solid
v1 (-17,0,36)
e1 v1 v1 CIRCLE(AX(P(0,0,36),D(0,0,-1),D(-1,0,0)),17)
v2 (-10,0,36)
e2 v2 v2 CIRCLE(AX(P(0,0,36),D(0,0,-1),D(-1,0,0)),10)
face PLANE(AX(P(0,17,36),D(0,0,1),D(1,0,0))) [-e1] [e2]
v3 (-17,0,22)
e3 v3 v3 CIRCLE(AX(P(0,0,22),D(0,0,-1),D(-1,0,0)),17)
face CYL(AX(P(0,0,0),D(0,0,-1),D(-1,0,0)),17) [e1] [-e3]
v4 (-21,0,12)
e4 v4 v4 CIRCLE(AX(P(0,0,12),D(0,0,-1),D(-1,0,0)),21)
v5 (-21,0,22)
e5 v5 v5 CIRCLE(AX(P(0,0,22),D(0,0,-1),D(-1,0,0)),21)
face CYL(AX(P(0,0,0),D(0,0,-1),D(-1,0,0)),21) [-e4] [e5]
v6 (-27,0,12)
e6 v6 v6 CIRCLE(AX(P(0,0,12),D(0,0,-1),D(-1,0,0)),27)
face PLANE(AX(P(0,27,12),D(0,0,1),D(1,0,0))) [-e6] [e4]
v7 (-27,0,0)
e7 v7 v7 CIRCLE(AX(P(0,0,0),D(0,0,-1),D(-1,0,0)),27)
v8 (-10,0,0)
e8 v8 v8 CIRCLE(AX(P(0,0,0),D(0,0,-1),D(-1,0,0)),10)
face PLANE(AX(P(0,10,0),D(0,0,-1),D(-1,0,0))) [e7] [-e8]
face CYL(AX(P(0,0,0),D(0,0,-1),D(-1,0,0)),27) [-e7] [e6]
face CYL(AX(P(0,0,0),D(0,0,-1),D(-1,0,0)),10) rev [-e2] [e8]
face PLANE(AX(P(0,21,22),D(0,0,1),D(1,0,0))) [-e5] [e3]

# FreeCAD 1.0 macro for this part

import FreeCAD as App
import Part
import Sketcher


def add_polygon(sketch, points):
    """Adds a closed chain of lines whose ends are joined by coincident constraints."""
    first, n = sketch.GeometryCount, len(points)
    for a, b in zip(points, points[1:] + points[:1]):
        sketch.addGeometry(Part.LineSegment(App.Vector(*a, 0), App.Vector(*b, 0)), False)
    for i in range(n):
        sketch.addConstraint(Sketcher.Constraint("Coincident", first + i, 2, first + (i + 1) % n, 1))

doc = App.newDocument("Part")
body = doc.addObject("PartDesign::Body", "Body")

# Sketch on YZ plane
sketch1 = doc.addObject("Sketcher::SketchObject", "Sketch")
body.addObject(sketch1)
sketch1.AttachmentSupport = (doc.YZ_Plane, [""])
sketch1.MapMode = "FlatFace"
add_polygon(sketch1, [(10, 0), (27, 0), (27, 12), (21, 12), (21, 22), (17, 22), (17, 36), (10, 36)])  # lines 0-7
sketch1.addConstraint(Sketcher.Constraint("Horizontal", 0))
sketch1.addConstraint(Sketcher.Constraint("Vertical", 1))
sketch1.addConstraint(Sketcher.Constraint("Horizontal", 2))
sketch1.addConstraint(Sketcher.Constraint("Vertical", 3))
sketch1.addConstraint(Sketcher.Constraint("Horizontal", 4))
sketch1.addConstraint(Sketcher.Constraint("Vertical", 5))
sketch1.addConstraint(Sketcher.Constraint("Horizontal", 6))
sketch1.addConstraint(Sketcher.Constraint("Vertical", 7))
sketch1.addConstraint(Sketcher.Constraint("PointOnObject", 0, 2, -1))
sketch1.addConstraint(Sketcher.Constraint("DistanceX", 0, 1, 0, 2, 17.0))
sketch1.addConstraint(Sketcher.Constraint("DistanceX", 2, 2, 2, 1, 6.0))
sketch1.addConstraint(Sketcher.Constraint("DistanceX", 4, 2, 4, 1, 4.0))
sketch1.addConstraint(Sketcher.Constraint("DistanceY", 1, 1, 1, 2, 12.0))
sketch1.addConstraint(Sketcher.Constraint("DistanceY", 3, 1, 3, 2, 10.0))
sketch1.addConstraint(Sketcher.Constraint("DistanceY", 5, 1, 5, 2, 14.0))
sketch1.addConstraint(Sketcher.Constraint("DistanceX", -1, 1, 0, 2, 27.0))
revolution = doc.addObject("PartDesign::Revolution", "Revolution")
body.addObject(revolution)
revolution.Profile = sketch1
revolution.ReferenceAxis = (sketch1, ["V_Axis"])
revolution.Angle = 360

doc.recompute()
